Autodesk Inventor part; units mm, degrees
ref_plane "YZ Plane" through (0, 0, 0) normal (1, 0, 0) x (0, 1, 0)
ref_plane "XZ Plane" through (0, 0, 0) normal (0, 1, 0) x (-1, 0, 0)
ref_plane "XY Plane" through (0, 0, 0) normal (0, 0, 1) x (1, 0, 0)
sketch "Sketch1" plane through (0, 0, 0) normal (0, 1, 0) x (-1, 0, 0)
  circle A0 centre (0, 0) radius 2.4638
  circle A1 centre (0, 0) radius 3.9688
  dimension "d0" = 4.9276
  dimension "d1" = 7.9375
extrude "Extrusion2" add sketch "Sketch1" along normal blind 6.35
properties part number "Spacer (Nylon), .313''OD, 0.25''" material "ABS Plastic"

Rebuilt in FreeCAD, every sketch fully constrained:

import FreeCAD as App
import Part
import Sketcher
Q = App.Units.Quantity

doc = App.newDocument("Part")
body = doc.addObject("PartDesign::Body", "Body")

sketch1 = body.newObject("Sketcher::SketchObject", "Sketch")
sketch1.AttachmentSupport = (doc.getObject("XZ_Plane"), [""])
sketch1.MapMode = "FlatFace"
sketch1.addGeometry(Part.Circle(App.Vector(0, 0, 0), App.Vector(0, 0, 1), 4), False)
sketch1.addGeometry(Part.Circle(App.Vector(0, 0, 0), App.Vector(0, 0, 1), 2.5), False)
sketch1.addConstraint(Sketcher.Constraint("Coincident", 0, 3, -1, 1))
sketch1.addConstraint(Sketcher.Constraint("Coincident", 1, 3, -1, 1))
sketch1.addConstraint(Sketcher.Constraint("Diameter", 0, Q("0.3125 in")))
sketch1.addConstraint(Sketcher.Constraint("Diameter", 1, Q("0.194 in")))
pad1 = body.newObject("PartDesign::Pad", "Pad")
pad1.Profile = sketch1
pad1.Length = Q("0.25 in")
pad1.Reversed = True

doc.recompute()
